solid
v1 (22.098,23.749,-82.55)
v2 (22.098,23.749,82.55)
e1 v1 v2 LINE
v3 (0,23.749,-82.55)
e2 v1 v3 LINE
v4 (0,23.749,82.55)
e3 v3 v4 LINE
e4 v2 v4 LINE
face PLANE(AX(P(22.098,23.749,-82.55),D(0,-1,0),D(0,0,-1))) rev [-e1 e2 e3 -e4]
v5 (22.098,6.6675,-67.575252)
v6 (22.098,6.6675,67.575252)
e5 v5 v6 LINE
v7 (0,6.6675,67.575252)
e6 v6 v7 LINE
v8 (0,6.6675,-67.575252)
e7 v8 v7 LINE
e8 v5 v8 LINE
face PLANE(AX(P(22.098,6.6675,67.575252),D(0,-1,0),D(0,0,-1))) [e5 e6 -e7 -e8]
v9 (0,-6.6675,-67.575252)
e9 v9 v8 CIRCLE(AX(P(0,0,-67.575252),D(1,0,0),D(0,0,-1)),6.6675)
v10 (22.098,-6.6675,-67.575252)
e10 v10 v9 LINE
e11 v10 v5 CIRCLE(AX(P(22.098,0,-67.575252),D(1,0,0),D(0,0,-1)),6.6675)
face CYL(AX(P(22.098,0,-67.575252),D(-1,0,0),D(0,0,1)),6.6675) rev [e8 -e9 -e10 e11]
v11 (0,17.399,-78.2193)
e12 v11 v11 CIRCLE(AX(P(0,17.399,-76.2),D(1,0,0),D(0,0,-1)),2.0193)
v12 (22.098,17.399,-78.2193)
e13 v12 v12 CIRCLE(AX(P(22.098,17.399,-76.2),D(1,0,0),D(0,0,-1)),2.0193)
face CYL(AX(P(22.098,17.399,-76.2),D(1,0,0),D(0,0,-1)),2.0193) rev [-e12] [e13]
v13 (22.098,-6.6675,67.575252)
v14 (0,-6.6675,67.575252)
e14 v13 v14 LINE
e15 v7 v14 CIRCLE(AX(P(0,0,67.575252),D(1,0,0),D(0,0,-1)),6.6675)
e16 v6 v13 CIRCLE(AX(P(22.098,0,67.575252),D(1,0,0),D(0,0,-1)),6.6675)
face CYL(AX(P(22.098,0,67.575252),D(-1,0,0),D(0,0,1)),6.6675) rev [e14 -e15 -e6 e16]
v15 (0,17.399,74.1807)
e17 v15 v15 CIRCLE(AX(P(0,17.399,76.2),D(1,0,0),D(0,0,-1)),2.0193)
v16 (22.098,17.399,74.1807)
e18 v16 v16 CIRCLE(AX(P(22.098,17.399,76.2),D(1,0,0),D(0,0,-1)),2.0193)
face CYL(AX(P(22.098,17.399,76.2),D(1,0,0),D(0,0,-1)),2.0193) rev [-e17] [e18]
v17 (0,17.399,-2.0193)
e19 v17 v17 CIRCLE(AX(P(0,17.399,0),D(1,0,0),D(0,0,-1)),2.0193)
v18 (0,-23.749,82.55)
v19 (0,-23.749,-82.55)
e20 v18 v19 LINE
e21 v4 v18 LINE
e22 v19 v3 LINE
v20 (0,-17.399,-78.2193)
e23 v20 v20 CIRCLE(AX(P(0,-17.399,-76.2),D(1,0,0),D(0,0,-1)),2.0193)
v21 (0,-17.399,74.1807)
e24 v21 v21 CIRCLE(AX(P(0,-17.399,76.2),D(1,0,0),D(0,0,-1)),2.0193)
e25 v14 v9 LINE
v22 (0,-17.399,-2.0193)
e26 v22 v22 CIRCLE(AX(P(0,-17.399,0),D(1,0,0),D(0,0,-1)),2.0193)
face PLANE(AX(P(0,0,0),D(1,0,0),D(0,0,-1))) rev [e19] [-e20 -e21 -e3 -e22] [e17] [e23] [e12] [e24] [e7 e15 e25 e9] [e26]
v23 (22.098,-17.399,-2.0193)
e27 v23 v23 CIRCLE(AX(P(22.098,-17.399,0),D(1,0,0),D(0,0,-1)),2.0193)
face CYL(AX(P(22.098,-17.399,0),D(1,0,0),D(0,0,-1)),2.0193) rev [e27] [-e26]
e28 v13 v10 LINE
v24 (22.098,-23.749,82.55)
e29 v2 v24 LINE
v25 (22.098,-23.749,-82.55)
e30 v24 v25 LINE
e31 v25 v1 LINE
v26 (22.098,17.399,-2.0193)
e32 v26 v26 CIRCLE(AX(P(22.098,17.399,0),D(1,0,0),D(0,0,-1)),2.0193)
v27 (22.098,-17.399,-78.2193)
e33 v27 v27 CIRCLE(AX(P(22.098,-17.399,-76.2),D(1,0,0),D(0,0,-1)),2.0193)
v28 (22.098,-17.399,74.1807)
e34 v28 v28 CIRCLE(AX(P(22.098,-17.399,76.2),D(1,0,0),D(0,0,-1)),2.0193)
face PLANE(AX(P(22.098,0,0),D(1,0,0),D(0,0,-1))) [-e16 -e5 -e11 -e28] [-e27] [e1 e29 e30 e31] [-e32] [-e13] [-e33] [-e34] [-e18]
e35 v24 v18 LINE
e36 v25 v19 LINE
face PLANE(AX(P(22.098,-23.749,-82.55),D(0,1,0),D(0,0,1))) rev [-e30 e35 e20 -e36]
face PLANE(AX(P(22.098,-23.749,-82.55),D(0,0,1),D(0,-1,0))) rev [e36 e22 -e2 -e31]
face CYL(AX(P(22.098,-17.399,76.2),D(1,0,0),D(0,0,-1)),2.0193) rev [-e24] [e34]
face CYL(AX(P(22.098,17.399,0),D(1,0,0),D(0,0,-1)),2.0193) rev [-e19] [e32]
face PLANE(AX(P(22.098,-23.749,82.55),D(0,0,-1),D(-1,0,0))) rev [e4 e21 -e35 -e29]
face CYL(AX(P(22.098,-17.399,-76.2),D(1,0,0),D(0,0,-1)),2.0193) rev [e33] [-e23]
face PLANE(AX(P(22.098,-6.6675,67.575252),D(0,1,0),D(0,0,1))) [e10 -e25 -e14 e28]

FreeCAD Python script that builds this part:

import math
import FreeCAD as App
import Part
import Sketcher
from FreeCAD import Vector
Q = App.Units.Quantity


def add_polygon(sketch, points):
    """Adds a closed chain of lines whose ends are joined by coincident constraints."""
    first, n = sketch.GeometryCount, len(points)
    for a, b in zip(points, points[1:] + points[:1]):
        sketch.addGeometry(Part.LineSegment(App.Vector(*a, 0), App.Vector(*b, 0)), False)
    for i in range(n):
        sketch.addConstraint(Sketcher.Constraint("Coincident", first + i, 2, first + (i + 1) % n, 1))

doc = App.newDocument("Part")
body = doc.addObject("PartDesign::Body", "Body")

# Sketch on YZ plane
sketch1 = doc.addObject("Sketcher::SketchObject", "Sketch")
body.addObject(sketch1)
sketch1.AttachmentSupport = (doc.YZ_Plane, [""])
sketch1.MapMode = "FlatFace"
add_polygon(sketch1, [(24, 83), (-24, 83), (-24, -83), (24, -83)])  # lines 0-3
sketch1.addGeometry(Part.ArcOfCircle(Part.Circle(Vector(0, 68, 0), Vector(0, 0, 1), 7), math.radians(0), math.radians(180)), False)  # 4
sketch1.addGeometry(Part.LineSegment(Vector(7, 68, 0), Vector(7, -68, 0)), False)  # 5
sketch1.addGeometry(Part.ArcOfCircle(Part.Circle(Vector(0, -68, 0), Vector(0, 0, 1), 7), math.radians(180), math.radians(360)), False)  # 6
sketch1.addGeometry(Part.LineSegment(Vector(-7, -68, 0), Vector(-7, 68, 0)), False)  # 7
sketch1.addConstraint(Sketcher.Constraint("Tangent", 4, 1, 5, 1))
sketch1.addConstraint(Sketcher.Constraint("Tangent", 5, 2, 6, 2))
sketch1.addConstraint(Sketcher.Constraint("Tangent", 6, 1, 7, 1))
sketch1.addConstraint(Sketcher.Constraint("Tangent", 7, 2, 4, 2))
sketch1.addConstraint(Sketcher.Constraint("Horizontal", 0))
sketch1.addConstraint(Sketcher.Constraint("Vertical", 1))
sketch1.addConstraint(Sketcher.Constraint("Horizontal", 2))
sketch1.addConstraint(Sketcher.Constraint("Vertical", 3))
sketch1.addConstraint(Sketcher.Constraint("Vertical", 5))
sketch1.addConstraint(Sketcher.Constraint("Vertical", 7))
sketch1.addConstraint(Sketcher.Constraint("Symmetric", 4, 3, 6, 3, -1, 1))
sketch1.addConstraint(Sketcher.Constraint("Symmetric", 0, 2, 2, 2, -1, 1))
sketch1.addConstraint(Sketcher.Constraint("DistanceY", 1, 2, 1, 1, Q("6.5 in")))
sketch1.addConstraint(Sketcher.Constraint("DistanceX", 0, 2, 0, 1, Q("1.87 in")))
sketch1.addConstraint(Sketcher.Constraint("Radius", 4, Q("0.2625 in")))
sketch1.addConstraint(Sketcher.Constraint("DistanceY", 5, 2, 5, 1, 135.150504))
pad1 = doc.addObject("PartDesign::Pad", "Pad")
body.addObject(pad1)
pad1.Profile = sketch1
pad1.Length = Q("0.87 in")

# Sketch on YZ plane
sketch2 = doc.addObject("Sketcher::SketchObject", "Sketch001")
body.addObject(sketch2)
sketch2.AttachmentSupport = (doc.YZ_Plane, [""])
sketch2.MapMode = "FlatFace"
sketch2.AttachmentOffset = App.Placement(Vector(0, 0, 0.87 * 25.4), App.Rotation())
sketch2.addGeometry(Part.Circle(Vector(17.4, 76.2, 0), Vector(0, 0, 1), 2), False)
sketch2.addGeometry(Part.Circle(Vector(-17.4, 76.2, 0), Vector(0, 0, 1), 2), False)
sketch2.addGeometry(Part.Circle(Vector(-17.4, 0, 0), Vector(0, 0, 1), 2), False)
sketch2.addGeometry(Part.Circle(Vector(-17.4, -76.2, 0), Vector(0, 0, 1), 2), False)
sketch2.addGeometry(Part.Circle(Vector(17.4, -76.2, 0), Vector(0, 0, 1), 2), False)
sketch2.addGeometry(Part.Circle(Vector(17.4, 0, 0), Vector(0, 0, 1), 2), False)
sketch2.addConstraint(Sketcher.Constraint("Equal", 0, 1))
sketch2.addConstraint(Sketcher.Constraint("Equal", 1, 2))
sketch2.addConstraint(Sketcher.Constraint("Equal", 2, 3))
sketch2.addConstraint(Sketcher.Constraint("Equal", 3, 4))
sketch2.addConstraint(Sketcher.Constraint("Equal", 4, 5))
sketch2.addConstraint(Sketcher.Constraint("Symmetric", 0, 3, 3, 3, -1, 1))
sketch2.addConstraint(Sketcher.Constraint("Symmetric", 1, 3, 4, 3, -1, 1))
sketch2.addConstraint(Sketcher.Constraint("Symmetric", 2, 3, 5, 3, -1, 1))
sketch2.addConstraint(Sketcher.Constraint("Symmetric", 0, 3, 1, 3, -2))
sketch2.addConstraint(Sketcher.Constraint("PointOnObject", 2, 3, -1))
sketch2.addConstraint(Sketcher.Constraint("Vertical", 1, 3, 2, 3))
sketch2.addConstraint(Sketcher.Constraint("Diameter", 0, Q("0.159 in")))
sketch2.addConstraint(Sketcher.Constraint("DistanceY", -1, 1, 0, 3, Q("3 in")))
sketch2.addConstraint(Sketcher.Constraint("DistanceX", 1, 3, 0, 3, Q("1.37 in")))
doc.recompute()
hole = doc.addObject("PartDesign::Hole", "Hole")
body.addObject(hole)
hole.Profile = sketch2
hole.ThreadType = "None"
hole.Diameter = Q("0.159 in")
hole.DepthType = "ThroughAll"

doc.recompute()
